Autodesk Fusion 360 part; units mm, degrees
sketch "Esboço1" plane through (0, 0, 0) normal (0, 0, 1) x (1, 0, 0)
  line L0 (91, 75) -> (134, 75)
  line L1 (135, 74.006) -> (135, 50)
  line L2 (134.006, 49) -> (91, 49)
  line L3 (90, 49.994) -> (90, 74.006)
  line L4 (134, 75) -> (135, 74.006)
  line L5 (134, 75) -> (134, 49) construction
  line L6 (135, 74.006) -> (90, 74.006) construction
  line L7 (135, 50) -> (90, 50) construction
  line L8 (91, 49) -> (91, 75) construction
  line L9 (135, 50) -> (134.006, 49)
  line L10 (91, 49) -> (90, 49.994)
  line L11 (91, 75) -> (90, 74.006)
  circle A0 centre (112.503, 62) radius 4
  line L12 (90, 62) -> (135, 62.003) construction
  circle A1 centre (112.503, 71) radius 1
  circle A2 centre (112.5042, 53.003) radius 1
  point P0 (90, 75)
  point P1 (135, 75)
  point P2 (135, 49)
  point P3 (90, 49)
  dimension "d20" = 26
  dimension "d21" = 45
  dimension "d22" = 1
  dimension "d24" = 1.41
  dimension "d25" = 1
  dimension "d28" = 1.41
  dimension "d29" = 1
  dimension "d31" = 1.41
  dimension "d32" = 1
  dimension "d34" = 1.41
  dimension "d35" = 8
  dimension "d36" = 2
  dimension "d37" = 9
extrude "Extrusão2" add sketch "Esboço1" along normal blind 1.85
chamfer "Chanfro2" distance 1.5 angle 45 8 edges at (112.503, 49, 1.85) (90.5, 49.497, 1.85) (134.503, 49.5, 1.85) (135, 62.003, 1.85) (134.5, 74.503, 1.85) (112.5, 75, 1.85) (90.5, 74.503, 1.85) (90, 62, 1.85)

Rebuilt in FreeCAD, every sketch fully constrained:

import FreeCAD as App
import Part
import Sketcher

V = App.Vector


def edges_at(feature, points):
    """Names of the edges that pass closest to the given points."""
    edges = feature.Shape.Edges
    near = lambda p: min(range(len(edges)), key=lambda i: edges[i].distToShape(Part.Vertex(*p))[0])
    return sorted({f"Edge{near(p) + 1}" for p in points})

doc = App.newDocument("Part")
body = doc.addObject("PartDesign::Body", "Body")

sketch1 = doc.addObject("Sketcher::SketchObject", "Sketch")
body.addObject(sketch1)
sketch1.AttachmentSupport = (doc.XY_Plane, [""])
sketch1.MapMode = "FlatFace"
sketch1.addGeometry([
    Part.LineSegment(V(134, 75, 0), V(91, 75, 0)),
    Part.LineSegment(V(91, 75, 0), V(90, 74, 0)),
    Part.LineSegment(V(90, 74, 0), V(90, 50, 0)),
    Part.LineSegment(V(90, 50, 0), V(91, 49, 0)),
    Part.LineSegment(V(91, 49, 0), V(134, 49, 0)),
    Part.LineSegment(V(134, 49, 0), V(135, 50, 0)),
    Part.LineSegment(V(135, 50, 0), V(135, 74, 0)),
    Part.LineSegment(V(135, 74, 0), V(134, 75, 0)),
    Part.Circle(V(112.5, 53, 0), V(0, 0, 1), 1),
    Part.Circle(V(112.5, 62, 0), V(0, 0, 1), 4),
    Part.Circle(V(112.5, 71, 0), V(0, 0, 1), 1),
], False)
sketch1.addConstraint([
    Sketcher.Constraint("Coincident", 0, 2, 1, 1),
    Sketcher.Constraint("Coincident", 1, 2, 2, 1),
    Sketcher.Constraint("Coincident", 2, 2, 3, 1),
    Sketcher.Constraint("Coincident", 3, 2, 4, 1),
    Sketcher.Constraint("Coincident", 4, 2, 5, 1),
    Sketcher.Constraint("Coincident", 5, 2, 6, 1),
    Sketcher.Constraint("Coincident", 6, 2, 7, 1),
    Sketcher.Constraint("Coincident", 7, 2, 0, 1),
    Sketcher.Constraint("Horizontal", 0),
    Sketcher.Constraint("Vertical", 2),
    Sketcher.Constraint("Horizontal", 4),
    Sketcher.Constraint("Vertical", 6),
    Sketcher.Constraint("Equal", 8, 10),
    Sketcher.Constraint("Perpendicular", 3, 5),
    Sketcher.Constraint("Perpendicular", 5, 7),
    Sketcher.Constraint("Horizontal", 1, 2, 6, 2),
    Sketcher.Constraint("Vertical", 9, 3, 10, 3),
    Sketcher.Constraint("Vertical", 0, 2, 3, 2),
    Sketcher.Constraint("Equal", 1, 3),
    Sketcher.Constraint("Equal", 3, 5),
    Sketcher.Constraint("Diameter", 8, 2.0),
    Sketcher.Constraint("Diameter", 9, 8.0),
    Sketcher.Constraint("DistanceY", 9, 3, 10, 3, 9.0),
    Sketcher.Constraint("DistanceX", 1, 2, 0, 2, 1.0),
    Sketcher.Constraint("DistanceY", 3, 2, 0, 2, 26.0),
    Sketcher.Constraint("Distance", 1, 1.41),
    Sketcher.Constraint("DistanceX", 0, 2, 0, 1, 43.0),
    Sketcher.Constraint("DistanceY", -1, 1, 9, 3, 62.0),
    Sketcher.Constraint("DistanceX", -1, 1, 0, 2, 91.0),
    Sketcher.Constraint("DistanceY", -1, 1, 0, 2, 75.0),
    Sketcher.Constraint("DistanceY", -1, 1, 8, 3, 53.003),
    Sketcher.Constraint("DistanceX", -1, 1, 9, 3, 112.503),
    Sketcher.Constraint("DistanceX", -1, 1, 8, 3, 112.5042),
])
pad1 = doc.addObject("PartDesign::Pad", "Pad")
body.addObject(pad1)
pad1.Profile = sketch1
pad1.Length = 1.85
doc.recompute()

chamfer = doc.addObject("PartDesign::Chamfer", "Chamfer")
body.addObject(chamfer)
chamfer.Base = (pad1, edges_at(pad1, [
    (112.503, 49, 1.85),
    (90.5, 49.497, 1.85),
    (134.503, 49.5, 1.85),
    (135, 62.003, 1.85),
    (134.5, 74.503, 1.85),
    (112.5, 75, 1.85),
    (90.5, 74.503, 1.85),
    (90, 62, 1.85),
]))
chamfer.Size = 1.5

doc.recompute()
